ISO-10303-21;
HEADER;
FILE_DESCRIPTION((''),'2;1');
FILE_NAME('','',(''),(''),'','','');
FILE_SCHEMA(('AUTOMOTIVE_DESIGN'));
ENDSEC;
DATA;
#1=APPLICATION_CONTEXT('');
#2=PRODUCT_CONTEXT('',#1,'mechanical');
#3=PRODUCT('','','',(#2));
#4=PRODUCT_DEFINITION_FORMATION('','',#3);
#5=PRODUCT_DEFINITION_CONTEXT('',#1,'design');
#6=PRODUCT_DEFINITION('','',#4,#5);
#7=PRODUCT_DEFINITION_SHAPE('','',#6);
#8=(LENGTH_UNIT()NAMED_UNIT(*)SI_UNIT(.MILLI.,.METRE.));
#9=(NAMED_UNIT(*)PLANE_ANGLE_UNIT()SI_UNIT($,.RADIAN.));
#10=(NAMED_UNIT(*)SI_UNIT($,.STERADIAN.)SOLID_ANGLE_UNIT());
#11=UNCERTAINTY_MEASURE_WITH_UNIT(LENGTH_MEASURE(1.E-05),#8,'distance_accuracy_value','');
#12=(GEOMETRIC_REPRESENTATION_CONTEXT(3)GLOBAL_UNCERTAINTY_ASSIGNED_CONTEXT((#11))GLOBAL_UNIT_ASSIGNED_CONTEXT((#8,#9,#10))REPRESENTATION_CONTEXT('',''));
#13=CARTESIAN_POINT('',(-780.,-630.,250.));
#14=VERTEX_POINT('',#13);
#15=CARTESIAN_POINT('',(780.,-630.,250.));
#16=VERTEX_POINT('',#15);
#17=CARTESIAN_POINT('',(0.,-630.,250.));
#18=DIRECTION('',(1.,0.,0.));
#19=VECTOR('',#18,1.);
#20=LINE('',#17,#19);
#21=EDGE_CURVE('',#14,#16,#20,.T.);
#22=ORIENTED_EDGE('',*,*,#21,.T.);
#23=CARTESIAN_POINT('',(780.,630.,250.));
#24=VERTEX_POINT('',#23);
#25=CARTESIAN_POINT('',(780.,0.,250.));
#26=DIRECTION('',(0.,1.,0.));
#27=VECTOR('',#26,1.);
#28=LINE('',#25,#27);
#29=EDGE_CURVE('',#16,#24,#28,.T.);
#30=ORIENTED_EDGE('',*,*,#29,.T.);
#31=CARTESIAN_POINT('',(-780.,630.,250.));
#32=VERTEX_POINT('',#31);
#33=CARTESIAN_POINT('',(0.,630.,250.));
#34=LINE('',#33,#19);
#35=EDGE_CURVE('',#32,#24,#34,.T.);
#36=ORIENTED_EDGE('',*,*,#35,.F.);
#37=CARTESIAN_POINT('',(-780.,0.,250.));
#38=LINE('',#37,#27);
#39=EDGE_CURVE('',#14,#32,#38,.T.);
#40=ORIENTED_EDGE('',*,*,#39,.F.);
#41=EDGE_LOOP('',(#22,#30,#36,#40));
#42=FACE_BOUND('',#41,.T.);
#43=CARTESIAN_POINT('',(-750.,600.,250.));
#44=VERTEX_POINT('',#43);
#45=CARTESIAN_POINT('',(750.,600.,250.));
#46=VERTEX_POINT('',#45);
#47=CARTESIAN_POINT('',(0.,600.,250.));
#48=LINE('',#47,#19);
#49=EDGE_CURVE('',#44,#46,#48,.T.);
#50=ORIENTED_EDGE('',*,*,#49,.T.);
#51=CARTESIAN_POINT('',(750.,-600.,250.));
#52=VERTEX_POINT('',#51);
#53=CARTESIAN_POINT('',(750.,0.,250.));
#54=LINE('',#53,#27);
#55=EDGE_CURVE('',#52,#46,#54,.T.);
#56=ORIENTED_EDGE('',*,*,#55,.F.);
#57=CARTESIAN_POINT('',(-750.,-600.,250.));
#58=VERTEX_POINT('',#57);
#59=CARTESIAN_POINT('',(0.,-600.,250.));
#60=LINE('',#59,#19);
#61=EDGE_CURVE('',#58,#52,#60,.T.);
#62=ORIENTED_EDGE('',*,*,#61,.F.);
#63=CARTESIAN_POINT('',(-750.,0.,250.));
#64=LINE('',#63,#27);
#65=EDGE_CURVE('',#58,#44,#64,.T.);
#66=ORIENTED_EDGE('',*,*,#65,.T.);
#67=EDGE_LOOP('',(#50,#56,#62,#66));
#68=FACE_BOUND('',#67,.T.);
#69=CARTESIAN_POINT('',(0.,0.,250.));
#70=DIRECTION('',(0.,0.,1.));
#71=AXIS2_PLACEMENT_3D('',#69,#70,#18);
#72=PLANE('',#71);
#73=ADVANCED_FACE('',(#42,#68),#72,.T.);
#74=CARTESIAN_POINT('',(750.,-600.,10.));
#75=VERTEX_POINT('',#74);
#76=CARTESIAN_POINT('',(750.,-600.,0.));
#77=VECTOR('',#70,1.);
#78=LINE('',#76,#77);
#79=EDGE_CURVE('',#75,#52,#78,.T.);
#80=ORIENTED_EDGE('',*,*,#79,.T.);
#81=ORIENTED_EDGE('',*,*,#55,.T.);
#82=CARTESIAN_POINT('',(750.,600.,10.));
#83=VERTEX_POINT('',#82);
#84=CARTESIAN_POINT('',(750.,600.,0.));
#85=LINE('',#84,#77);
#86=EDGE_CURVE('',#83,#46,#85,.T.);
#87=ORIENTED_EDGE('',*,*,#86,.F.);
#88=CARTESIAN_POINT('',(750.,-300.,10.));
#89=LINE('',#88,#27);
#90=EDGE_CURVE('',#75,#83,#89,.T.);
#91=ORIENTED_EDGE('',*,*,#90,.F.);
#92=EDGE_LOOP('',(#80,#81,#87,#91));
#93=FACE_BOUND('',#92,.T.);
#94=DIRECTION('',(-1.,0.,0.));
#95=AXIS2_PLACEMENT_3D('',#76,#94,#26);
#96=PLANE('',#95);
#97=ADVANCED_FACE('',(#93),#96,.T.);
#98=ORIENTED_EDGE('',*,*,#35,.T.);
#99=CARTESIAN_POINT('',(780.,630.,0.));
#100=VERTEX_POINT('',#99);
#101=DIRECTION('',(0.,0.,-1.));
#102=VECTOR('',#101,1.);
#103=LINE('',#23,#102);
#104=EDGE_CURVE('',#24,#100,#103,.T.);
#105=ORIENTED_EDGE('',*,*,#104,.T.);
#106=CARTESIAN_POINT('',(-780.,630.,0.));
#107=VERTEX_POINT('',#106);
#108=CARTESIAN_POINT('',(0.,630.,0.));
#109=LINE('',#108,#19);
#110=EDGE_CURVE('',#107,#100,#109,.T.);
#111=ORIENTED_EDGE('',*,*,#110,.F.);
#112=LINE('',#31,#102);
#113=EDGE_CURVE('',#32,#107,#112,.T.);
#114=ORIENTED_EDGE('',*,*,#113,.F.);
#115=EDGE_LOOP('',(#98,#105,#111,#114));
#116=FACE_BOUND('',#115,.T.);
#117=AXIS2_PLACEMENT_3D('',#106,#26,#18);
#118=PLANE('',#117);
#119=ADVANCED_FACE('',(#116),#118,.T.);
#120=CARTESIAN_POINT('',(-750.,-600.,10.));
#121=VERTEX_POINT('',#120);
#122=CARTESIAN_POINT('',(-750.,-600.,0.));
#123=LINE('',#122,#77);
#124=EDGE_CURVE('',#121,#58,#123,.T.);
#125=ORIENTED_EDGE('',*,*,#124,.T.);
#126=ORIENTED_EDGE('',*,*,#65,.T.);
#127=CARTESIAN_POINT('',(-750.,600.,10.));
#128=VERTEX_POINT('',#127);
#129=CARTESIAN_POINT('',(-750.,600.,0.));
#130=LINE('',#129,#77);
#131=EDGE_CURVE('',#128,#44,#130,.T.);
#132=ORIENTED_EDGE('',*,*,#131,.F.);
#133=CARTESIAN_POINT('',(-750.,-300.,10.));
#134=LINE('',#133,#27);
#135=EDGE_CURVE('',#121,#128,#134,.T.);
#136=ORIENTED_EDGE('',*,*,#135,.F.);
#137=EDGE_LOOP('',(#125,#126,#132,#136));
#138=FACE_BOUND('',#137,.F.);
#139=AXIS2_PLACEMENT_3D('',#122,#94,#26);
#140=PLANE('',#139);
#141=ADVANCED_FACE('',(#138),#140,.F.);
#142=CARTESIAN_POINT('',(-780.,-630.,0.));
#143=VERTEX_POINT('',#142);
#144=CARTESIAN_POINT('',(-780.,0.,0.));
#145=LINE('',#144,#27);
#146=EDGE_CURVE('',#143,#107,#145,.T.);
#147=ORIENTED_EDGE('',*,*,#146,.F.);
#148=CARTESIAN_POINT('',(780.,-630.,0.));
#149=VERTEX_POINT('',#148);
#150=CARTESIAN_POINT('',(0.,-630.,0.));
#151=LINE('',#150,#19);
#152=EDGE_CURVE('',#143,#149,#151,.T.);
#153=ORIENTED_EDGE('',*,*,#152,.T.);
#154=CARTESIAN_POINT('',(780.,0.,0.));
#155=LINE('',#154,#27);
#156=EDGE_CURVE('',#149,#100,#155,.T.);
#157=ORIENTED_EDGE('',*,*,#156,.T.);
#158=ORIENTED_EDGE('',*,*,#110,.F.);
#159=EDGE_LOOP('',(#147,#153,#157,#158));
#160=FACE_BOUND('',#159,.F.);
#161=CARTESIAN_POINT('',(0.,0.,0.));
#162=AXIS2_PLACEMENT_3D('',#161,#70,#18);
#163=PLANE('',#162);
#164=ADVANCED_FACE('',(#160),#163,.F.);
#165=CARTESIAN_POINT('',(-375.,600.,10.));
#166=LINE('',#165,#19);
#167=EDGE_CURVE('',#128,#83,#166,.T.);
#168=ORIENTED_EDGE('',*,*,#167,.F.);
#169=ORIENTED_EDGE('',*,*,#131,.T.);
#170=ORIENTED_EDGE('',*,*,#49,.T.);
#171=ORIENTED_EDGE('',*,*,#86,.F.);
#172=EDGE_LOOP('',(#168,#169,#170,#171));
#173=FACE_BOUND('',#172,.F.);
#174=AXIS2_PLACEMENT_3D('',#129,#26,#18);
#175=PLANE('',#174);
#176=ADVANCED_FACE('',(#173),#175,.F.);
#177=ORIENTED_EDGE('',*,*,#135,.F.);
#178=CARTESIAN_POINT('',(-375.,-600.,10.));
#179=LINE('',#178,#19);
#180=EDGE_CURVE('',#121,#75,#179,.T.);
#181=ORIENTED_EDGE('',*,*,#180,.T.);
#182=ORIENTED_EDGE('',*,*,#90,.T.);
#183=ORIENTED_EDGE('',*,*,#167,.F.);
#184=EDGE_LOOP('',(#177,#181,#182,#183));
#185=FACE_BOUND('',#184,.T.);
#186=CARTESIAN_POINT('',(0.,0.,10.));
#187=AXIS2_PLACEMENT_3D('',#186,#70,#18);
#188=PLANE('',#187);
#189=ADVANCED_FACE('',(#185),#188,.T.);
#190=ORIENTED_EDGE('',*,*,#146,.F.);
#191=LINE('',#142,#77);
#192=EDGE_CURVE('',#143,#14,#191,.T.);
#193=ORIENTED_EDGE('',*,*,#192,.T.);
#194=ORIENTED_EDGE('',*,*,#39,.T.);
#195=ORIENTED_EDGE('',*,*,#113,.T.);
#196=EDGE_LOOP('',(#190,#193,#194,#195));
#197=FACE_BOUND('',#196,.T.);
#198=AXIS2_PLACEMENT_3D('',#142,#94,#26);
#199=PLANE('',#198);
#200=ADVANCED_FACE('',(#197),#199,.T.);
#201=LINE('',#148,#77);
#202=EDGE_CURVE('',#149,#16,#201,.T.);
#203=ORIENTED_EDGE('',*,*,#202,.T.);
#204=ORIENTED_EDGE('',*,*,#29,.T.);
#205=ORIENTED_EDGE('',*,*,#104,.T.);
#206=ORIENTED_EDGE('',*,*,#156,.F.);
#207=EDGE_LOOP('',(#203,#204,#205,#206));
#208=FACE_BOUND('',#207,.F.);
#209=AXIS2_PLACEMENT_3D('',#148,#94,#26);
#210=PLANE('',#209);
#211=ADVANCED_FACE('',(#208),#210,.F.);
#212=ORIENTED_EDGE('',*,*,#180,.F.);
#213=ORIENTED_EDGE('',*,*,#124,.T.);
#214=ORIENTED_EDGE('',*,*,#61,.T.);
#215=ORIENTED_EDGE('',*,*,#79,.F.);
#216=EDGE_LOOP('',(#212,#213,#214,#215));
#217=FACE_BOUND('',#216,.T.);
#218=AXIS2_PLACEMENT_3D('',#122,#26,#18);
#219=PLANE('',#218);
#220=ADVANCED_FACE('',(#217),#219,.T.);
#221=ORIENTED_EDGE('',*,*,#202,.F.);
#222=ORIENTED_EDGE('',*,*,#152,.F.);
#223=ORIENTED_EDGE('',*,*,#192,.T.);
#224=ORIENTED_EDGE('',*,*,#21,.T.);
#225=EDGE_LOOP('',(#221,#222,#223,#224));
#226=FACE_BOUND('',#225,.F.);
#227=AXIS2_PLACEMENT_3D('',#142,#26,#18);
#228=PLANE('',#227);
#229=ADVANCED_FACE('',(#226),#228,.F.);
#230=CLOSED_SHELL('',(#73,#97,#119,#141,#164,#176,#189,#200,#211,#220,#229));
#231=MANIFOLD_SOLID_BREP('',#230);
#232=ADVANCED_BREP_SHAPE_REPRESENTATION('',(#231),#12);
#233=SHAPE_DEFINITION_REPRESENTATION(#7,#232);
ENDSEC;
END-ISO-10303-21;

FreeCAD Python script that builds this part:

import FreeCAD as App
import Part
import Sketcher
from FreeCAD import Vector
Q = App.Units.Quantity

doc = App.newDocument("Part")
body = doc.addObject("PartDesign::Body", "Body")

# Sketch on XY plane
sketch1 = body.newObject("Sketcher::SketchObject", "Sketch")
sketch1.AttachmentSupport = (doc.getObject("XY_Plane"), [""])
sketch1.MapMode = "FlatFace"
sketch1.addGeometry(Part.LineSegment(Vector(-780, 630, 0), Vector(-780, -630, 0)), False)
sketch1.addGeometry(Part.LineSegment(Vector(-780, -630, 0), Vector(780, -630, 0)), False)
sketch1.addGeometry(Part.LineSegment(Vector(780, -630, 0), Vector(780, 630, 0)), False)
sketch1.addGeometry(Part.LineSegment(Vector(780, 630, 0), Vector(-780, 630, 0)), False)
sketch1.addGeometry(Part.LineSegment(Vector(750, -600, 0), Vector(-750, -600, 0)), False)
sketch1.addGeometry(Part.LineSegment(Vector(-750, -600, 0), Vector(-750, 600, 0)), False)
sketch1.addGeometry(Part.LineSegment(Vector(-750, 600, 0), Vector(750, 600, 0)), False)
sketch1.addGeometry(Part.LineSegment(Vector(750, 600, 0), Vector(750, -600, 0)), False)
sketch1.addConstraint(Sketcher.Constraint("Coincident", 0, 2, 1, 1))
sketch1.addConstraint(Sketcher.Constraint("Coincident", 1, 2, 2, 1))
sketch1.addConstraint(Sketcher.Constraint("Coincident", 2, 2, 3, 1))
sketch1.addConstraint(Sketcher.Constraint("Coincident", 3, 2, 0, 1))
sketch1.addConstraint(Sketcher.Constraint("Coincident", 4, 2, 5, 1))
sketch1.addConstraint(Sketcher.Constraint("Coincident", 5, 2, 6, 1))
sketch1.addConstraint(Sketcher.Constraint("Coincident", 6, 2, 7, 1))
sketch1.addConstraint(Sketcher.Constraint("Coincident", 7, 2, 4, 1))
sketch1.addConstraint(Sketcher.Constraint("Vertical", 0))
sketch1.addConstraint(Sketcher.Constraint("Horizontal", 1))
sketch1.addConstraint(Sketcher.Constraint("Vertical", 2))
sketch1.addConstraint(Sketcher.Constraint("Horizontal", 3))
sketch1.addConstraint(Sketcher.Constraint("Horizontal", 4))
sketch1.addConstraint(Sketcher.Constraint("Vertical", 5))
sketch1.addConstraint(Sketcher.Constraint("Horizontal", 6))
sketch1.addConstraint(Sketcher.Constraint("Vertical", 7))
sketch1.addConstraint(Sketcher.Constraint("Symmetric", 0, 2, 2, 2, -1, 1))
sketch1.addConstraint(Sketcher.Constraint("Symmetric", 4, 2, 6, 2, -1, 1))
sketch1.addConstraint(Sketcher.Constraint("DistanceX", 1, 1, 1, 2, Q("1560 mm")))
sketch1.addConstraint(Sketcher.Constraint("DistanceX", 4, 2, 4, 1, Q("1500 mm")))
sketch1.addConstraint(Sketcher.Constraint("DistanceY", 0, 2, 0, 1, Q("1260 mm")))
sketch1.addConstraint(Sketcher.Constraint("DistanceY", 5, 1, 5, 2, Q("1200 mm")))
pad1 = body.newObject("PartDesign::Pad", "Pad")
pad1.Profile = sketch1
pad1.Length = 250

# Sketch on XY plane
sketch2 = body.newObject("Sketcher::SketchObject", "Sketch001")
sketch2.AttachmentSupport = (doc.getObject("XY_Plane"), [""])
sketch2.MapMode = "FlatFace"
sketch2.addGeometry(Part.LineSegment(Vector(-780, 630, 0), Vector(-780, -630, 0)), False)
sketch2.addGeometry(Part.LineSegment(Vector(-780, -630, 0), Vector(780, -630, 0)), False)
sketch2.addGeometry(Part.LineSegment(Vector(780, -630, 0), Vector(780, 630, 0)), False)
sketch2.addGeometry(Part.LineSegment(Vector(780, 630, 0), Vector(-780, 630, 0)), False)
sketch2.addConstraint(Sketcher.Constraint("Coincident", 0, 2, 1, 1))
sketch2.addConstraint(Sketcher.Constraint("Coincident", 1, 2, 2, 1))
sketch2.addConstraint(Sketcher.Constraint("Coincident", 2, 2, 3, 1))
sketch2.addConstraint(Sketcher.Constraint("Coincident", 3, 2, 0, 1))
sketch2.addConstraint(Sketcher.Constraint("Vertical", 0))
sketch2.addConstraint(Sketcher.Constraint("Horizontal", 1))
sketch2.addConstraint(Sketcher.Constraint("Vertical", 2))
sketch2.addConstraint(Sketcher.Constraint("Horizontal", 3))
sketch2.addConstraint(Sketcher.Constraint("Symmetric", 0, 2, 2, 2, -1, 1))
sketch2.addConstraint(Sketcher.Constraint("DistanceX", 1, 1, 1, 2, Q("1560 mm")))
sketch2.addConstraint(Sketcher.Constraint("DistanceY", 0, 2, 0, 1, Q("1260 mm")))
pad2 = body.newObject("PartDesign::Pad", "Pad001")
pad2.Profile = sketch2
pad2.Length = 10

doc.recompute()
